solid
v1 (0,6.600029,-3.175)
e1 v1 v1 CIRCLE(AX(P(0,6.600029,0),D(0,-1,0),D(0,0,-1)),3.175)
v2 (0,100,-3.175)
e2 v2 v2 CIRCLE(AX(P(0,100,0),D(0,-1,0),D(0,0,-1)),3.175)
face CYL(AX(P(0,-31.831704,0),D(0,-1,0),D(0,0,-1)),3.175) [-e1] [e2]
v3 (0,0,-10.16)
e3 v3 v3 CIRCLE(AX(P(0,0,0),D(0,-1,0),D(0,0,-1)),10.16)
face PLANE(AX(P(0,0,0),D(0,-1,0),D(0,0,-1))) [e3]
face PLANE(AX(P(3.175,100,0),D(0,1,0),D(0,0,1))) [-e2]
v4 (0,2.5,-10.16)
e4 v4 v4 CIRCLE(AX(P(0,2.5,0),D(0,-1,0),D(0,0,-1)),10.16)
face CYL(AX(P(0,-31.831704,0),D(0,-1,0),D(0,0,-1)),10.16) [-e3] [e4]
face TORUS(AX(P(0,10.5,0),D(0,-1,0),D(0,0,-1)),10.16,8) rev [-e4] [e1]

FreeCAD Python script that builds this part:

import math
import FreeCAD as App
import Part
import Sketcher
Q = App.Units.Quantity

doc = App.newDocument("Part")
body = doc.addObject("PartDesign::Body", "Body")

# Sketch on XY plane
sketch1 = doc.addObject("Sketcher::SketchObject", "Sketch")
body.addObject(sketch1)
sketch1.AttachmentSupport = (doc.XY_Plane, [""])
sketch1.MapMode = "FlatFace"
sketch1.addGeometry(Part.LineSegment(App.Vector(0, 0, 0), App.Vector(10.2, 0, 0)), False)
sketch1.addGeometry(Part.LineSegment(App.Vector(10.2, 0, 0), App.Vector(10.2, 2.5, 0)), False)
sketch1.addGeometry(Part.ArcOfCircle(Part.Circle(App.Vector(10.2, 10.5, 0), App.Vector(0, 0, 1), 8), math.radians(-151), math.radians(-90)), False)
sketch1.addGeometry(Part.LineSegment(App.Vector(3.2, 6.6, 0), App.Vector(3.2, 100, 0)), False)
sketch1.addGeometry(Part.LineSegment(App.Vector(3.2, 100, 0), App.Vector(0, 100, 0)), False)
sketch1.addGeometry(Part.LineSegment(App.Vector(0, 100, 0), App.Vector(0, 0, 0)), False)
sketch1.addConstraint(Sketcher.Constraint("Coincident", 0, 2, 1, 1))
sketch1.addConstraint(Sketcher.Constraint("Coincident", 1, 2, 2, 2))
sketch1.addConstraint(Sketcher.Constraint("Coincident", 2, 1, 3, 1))
sketch1.addConstraint(Sketcher.Constraint("Coincident", 3, 2, 4, 1))
sketch1.addConstraint(Sketcher.Constraint("Coincident", 4, 2, 5, 1))
sketch1.addConstraint(Sketcher.Constraint("Coincident", 5, 2, 0, 1))
sketch1.addConstraint(Sketcher.Constraint("Horizontal", 0))
sketch1.addConstraint(Sketcher.Constraint("Vertical", 1))
sketch1.addConstraint(Sketcher.Constraint("Vertical", 3))
sketch1.addConstraint(Sketcher.Constraint("Horizontal", 4))
sketch1.addConstraint(Sketcher.Constraint("Vertical", 5))
sketch1.addConstraint(Sketcher.Constraint("Coincident", 5, 2, -1, 1))
sketch1.addConstraint(Sketcher.Constraint("Vertical", 2, 3, 0, 2))
sketch1.addConstraint(Sketcher.Constraint("Radius", 2, Q("8 mm")))
sketch1.addConstraint(Sketcher.Constraint("DistanceY", 5, 2, 5, 1, Q("100 mm")))
sketch1.addConstraint(Sketcher.Constraint("DistanceY", 1, 1, 1, 2, Q("2.5 mm")))
sketch1.addConstraint(Sketcher.Constraint("DistanceX", 0, 1, 0, 2, Q("10.16 mm")))
sketch1.addConstraint(Sketcher.Constraint("DistanceX", 4, 2, 4, 1, Q("3.175 mm")))
revolution = doc.addObject("PartDesign::Revolution", "Revolution")
body.addObject(revolution)
revolution.Profile = sketch1
revolution.ReferenceAxis = (sketch1, ["V_Axis"])
revolution.Angle = 360

doc.recompute()
